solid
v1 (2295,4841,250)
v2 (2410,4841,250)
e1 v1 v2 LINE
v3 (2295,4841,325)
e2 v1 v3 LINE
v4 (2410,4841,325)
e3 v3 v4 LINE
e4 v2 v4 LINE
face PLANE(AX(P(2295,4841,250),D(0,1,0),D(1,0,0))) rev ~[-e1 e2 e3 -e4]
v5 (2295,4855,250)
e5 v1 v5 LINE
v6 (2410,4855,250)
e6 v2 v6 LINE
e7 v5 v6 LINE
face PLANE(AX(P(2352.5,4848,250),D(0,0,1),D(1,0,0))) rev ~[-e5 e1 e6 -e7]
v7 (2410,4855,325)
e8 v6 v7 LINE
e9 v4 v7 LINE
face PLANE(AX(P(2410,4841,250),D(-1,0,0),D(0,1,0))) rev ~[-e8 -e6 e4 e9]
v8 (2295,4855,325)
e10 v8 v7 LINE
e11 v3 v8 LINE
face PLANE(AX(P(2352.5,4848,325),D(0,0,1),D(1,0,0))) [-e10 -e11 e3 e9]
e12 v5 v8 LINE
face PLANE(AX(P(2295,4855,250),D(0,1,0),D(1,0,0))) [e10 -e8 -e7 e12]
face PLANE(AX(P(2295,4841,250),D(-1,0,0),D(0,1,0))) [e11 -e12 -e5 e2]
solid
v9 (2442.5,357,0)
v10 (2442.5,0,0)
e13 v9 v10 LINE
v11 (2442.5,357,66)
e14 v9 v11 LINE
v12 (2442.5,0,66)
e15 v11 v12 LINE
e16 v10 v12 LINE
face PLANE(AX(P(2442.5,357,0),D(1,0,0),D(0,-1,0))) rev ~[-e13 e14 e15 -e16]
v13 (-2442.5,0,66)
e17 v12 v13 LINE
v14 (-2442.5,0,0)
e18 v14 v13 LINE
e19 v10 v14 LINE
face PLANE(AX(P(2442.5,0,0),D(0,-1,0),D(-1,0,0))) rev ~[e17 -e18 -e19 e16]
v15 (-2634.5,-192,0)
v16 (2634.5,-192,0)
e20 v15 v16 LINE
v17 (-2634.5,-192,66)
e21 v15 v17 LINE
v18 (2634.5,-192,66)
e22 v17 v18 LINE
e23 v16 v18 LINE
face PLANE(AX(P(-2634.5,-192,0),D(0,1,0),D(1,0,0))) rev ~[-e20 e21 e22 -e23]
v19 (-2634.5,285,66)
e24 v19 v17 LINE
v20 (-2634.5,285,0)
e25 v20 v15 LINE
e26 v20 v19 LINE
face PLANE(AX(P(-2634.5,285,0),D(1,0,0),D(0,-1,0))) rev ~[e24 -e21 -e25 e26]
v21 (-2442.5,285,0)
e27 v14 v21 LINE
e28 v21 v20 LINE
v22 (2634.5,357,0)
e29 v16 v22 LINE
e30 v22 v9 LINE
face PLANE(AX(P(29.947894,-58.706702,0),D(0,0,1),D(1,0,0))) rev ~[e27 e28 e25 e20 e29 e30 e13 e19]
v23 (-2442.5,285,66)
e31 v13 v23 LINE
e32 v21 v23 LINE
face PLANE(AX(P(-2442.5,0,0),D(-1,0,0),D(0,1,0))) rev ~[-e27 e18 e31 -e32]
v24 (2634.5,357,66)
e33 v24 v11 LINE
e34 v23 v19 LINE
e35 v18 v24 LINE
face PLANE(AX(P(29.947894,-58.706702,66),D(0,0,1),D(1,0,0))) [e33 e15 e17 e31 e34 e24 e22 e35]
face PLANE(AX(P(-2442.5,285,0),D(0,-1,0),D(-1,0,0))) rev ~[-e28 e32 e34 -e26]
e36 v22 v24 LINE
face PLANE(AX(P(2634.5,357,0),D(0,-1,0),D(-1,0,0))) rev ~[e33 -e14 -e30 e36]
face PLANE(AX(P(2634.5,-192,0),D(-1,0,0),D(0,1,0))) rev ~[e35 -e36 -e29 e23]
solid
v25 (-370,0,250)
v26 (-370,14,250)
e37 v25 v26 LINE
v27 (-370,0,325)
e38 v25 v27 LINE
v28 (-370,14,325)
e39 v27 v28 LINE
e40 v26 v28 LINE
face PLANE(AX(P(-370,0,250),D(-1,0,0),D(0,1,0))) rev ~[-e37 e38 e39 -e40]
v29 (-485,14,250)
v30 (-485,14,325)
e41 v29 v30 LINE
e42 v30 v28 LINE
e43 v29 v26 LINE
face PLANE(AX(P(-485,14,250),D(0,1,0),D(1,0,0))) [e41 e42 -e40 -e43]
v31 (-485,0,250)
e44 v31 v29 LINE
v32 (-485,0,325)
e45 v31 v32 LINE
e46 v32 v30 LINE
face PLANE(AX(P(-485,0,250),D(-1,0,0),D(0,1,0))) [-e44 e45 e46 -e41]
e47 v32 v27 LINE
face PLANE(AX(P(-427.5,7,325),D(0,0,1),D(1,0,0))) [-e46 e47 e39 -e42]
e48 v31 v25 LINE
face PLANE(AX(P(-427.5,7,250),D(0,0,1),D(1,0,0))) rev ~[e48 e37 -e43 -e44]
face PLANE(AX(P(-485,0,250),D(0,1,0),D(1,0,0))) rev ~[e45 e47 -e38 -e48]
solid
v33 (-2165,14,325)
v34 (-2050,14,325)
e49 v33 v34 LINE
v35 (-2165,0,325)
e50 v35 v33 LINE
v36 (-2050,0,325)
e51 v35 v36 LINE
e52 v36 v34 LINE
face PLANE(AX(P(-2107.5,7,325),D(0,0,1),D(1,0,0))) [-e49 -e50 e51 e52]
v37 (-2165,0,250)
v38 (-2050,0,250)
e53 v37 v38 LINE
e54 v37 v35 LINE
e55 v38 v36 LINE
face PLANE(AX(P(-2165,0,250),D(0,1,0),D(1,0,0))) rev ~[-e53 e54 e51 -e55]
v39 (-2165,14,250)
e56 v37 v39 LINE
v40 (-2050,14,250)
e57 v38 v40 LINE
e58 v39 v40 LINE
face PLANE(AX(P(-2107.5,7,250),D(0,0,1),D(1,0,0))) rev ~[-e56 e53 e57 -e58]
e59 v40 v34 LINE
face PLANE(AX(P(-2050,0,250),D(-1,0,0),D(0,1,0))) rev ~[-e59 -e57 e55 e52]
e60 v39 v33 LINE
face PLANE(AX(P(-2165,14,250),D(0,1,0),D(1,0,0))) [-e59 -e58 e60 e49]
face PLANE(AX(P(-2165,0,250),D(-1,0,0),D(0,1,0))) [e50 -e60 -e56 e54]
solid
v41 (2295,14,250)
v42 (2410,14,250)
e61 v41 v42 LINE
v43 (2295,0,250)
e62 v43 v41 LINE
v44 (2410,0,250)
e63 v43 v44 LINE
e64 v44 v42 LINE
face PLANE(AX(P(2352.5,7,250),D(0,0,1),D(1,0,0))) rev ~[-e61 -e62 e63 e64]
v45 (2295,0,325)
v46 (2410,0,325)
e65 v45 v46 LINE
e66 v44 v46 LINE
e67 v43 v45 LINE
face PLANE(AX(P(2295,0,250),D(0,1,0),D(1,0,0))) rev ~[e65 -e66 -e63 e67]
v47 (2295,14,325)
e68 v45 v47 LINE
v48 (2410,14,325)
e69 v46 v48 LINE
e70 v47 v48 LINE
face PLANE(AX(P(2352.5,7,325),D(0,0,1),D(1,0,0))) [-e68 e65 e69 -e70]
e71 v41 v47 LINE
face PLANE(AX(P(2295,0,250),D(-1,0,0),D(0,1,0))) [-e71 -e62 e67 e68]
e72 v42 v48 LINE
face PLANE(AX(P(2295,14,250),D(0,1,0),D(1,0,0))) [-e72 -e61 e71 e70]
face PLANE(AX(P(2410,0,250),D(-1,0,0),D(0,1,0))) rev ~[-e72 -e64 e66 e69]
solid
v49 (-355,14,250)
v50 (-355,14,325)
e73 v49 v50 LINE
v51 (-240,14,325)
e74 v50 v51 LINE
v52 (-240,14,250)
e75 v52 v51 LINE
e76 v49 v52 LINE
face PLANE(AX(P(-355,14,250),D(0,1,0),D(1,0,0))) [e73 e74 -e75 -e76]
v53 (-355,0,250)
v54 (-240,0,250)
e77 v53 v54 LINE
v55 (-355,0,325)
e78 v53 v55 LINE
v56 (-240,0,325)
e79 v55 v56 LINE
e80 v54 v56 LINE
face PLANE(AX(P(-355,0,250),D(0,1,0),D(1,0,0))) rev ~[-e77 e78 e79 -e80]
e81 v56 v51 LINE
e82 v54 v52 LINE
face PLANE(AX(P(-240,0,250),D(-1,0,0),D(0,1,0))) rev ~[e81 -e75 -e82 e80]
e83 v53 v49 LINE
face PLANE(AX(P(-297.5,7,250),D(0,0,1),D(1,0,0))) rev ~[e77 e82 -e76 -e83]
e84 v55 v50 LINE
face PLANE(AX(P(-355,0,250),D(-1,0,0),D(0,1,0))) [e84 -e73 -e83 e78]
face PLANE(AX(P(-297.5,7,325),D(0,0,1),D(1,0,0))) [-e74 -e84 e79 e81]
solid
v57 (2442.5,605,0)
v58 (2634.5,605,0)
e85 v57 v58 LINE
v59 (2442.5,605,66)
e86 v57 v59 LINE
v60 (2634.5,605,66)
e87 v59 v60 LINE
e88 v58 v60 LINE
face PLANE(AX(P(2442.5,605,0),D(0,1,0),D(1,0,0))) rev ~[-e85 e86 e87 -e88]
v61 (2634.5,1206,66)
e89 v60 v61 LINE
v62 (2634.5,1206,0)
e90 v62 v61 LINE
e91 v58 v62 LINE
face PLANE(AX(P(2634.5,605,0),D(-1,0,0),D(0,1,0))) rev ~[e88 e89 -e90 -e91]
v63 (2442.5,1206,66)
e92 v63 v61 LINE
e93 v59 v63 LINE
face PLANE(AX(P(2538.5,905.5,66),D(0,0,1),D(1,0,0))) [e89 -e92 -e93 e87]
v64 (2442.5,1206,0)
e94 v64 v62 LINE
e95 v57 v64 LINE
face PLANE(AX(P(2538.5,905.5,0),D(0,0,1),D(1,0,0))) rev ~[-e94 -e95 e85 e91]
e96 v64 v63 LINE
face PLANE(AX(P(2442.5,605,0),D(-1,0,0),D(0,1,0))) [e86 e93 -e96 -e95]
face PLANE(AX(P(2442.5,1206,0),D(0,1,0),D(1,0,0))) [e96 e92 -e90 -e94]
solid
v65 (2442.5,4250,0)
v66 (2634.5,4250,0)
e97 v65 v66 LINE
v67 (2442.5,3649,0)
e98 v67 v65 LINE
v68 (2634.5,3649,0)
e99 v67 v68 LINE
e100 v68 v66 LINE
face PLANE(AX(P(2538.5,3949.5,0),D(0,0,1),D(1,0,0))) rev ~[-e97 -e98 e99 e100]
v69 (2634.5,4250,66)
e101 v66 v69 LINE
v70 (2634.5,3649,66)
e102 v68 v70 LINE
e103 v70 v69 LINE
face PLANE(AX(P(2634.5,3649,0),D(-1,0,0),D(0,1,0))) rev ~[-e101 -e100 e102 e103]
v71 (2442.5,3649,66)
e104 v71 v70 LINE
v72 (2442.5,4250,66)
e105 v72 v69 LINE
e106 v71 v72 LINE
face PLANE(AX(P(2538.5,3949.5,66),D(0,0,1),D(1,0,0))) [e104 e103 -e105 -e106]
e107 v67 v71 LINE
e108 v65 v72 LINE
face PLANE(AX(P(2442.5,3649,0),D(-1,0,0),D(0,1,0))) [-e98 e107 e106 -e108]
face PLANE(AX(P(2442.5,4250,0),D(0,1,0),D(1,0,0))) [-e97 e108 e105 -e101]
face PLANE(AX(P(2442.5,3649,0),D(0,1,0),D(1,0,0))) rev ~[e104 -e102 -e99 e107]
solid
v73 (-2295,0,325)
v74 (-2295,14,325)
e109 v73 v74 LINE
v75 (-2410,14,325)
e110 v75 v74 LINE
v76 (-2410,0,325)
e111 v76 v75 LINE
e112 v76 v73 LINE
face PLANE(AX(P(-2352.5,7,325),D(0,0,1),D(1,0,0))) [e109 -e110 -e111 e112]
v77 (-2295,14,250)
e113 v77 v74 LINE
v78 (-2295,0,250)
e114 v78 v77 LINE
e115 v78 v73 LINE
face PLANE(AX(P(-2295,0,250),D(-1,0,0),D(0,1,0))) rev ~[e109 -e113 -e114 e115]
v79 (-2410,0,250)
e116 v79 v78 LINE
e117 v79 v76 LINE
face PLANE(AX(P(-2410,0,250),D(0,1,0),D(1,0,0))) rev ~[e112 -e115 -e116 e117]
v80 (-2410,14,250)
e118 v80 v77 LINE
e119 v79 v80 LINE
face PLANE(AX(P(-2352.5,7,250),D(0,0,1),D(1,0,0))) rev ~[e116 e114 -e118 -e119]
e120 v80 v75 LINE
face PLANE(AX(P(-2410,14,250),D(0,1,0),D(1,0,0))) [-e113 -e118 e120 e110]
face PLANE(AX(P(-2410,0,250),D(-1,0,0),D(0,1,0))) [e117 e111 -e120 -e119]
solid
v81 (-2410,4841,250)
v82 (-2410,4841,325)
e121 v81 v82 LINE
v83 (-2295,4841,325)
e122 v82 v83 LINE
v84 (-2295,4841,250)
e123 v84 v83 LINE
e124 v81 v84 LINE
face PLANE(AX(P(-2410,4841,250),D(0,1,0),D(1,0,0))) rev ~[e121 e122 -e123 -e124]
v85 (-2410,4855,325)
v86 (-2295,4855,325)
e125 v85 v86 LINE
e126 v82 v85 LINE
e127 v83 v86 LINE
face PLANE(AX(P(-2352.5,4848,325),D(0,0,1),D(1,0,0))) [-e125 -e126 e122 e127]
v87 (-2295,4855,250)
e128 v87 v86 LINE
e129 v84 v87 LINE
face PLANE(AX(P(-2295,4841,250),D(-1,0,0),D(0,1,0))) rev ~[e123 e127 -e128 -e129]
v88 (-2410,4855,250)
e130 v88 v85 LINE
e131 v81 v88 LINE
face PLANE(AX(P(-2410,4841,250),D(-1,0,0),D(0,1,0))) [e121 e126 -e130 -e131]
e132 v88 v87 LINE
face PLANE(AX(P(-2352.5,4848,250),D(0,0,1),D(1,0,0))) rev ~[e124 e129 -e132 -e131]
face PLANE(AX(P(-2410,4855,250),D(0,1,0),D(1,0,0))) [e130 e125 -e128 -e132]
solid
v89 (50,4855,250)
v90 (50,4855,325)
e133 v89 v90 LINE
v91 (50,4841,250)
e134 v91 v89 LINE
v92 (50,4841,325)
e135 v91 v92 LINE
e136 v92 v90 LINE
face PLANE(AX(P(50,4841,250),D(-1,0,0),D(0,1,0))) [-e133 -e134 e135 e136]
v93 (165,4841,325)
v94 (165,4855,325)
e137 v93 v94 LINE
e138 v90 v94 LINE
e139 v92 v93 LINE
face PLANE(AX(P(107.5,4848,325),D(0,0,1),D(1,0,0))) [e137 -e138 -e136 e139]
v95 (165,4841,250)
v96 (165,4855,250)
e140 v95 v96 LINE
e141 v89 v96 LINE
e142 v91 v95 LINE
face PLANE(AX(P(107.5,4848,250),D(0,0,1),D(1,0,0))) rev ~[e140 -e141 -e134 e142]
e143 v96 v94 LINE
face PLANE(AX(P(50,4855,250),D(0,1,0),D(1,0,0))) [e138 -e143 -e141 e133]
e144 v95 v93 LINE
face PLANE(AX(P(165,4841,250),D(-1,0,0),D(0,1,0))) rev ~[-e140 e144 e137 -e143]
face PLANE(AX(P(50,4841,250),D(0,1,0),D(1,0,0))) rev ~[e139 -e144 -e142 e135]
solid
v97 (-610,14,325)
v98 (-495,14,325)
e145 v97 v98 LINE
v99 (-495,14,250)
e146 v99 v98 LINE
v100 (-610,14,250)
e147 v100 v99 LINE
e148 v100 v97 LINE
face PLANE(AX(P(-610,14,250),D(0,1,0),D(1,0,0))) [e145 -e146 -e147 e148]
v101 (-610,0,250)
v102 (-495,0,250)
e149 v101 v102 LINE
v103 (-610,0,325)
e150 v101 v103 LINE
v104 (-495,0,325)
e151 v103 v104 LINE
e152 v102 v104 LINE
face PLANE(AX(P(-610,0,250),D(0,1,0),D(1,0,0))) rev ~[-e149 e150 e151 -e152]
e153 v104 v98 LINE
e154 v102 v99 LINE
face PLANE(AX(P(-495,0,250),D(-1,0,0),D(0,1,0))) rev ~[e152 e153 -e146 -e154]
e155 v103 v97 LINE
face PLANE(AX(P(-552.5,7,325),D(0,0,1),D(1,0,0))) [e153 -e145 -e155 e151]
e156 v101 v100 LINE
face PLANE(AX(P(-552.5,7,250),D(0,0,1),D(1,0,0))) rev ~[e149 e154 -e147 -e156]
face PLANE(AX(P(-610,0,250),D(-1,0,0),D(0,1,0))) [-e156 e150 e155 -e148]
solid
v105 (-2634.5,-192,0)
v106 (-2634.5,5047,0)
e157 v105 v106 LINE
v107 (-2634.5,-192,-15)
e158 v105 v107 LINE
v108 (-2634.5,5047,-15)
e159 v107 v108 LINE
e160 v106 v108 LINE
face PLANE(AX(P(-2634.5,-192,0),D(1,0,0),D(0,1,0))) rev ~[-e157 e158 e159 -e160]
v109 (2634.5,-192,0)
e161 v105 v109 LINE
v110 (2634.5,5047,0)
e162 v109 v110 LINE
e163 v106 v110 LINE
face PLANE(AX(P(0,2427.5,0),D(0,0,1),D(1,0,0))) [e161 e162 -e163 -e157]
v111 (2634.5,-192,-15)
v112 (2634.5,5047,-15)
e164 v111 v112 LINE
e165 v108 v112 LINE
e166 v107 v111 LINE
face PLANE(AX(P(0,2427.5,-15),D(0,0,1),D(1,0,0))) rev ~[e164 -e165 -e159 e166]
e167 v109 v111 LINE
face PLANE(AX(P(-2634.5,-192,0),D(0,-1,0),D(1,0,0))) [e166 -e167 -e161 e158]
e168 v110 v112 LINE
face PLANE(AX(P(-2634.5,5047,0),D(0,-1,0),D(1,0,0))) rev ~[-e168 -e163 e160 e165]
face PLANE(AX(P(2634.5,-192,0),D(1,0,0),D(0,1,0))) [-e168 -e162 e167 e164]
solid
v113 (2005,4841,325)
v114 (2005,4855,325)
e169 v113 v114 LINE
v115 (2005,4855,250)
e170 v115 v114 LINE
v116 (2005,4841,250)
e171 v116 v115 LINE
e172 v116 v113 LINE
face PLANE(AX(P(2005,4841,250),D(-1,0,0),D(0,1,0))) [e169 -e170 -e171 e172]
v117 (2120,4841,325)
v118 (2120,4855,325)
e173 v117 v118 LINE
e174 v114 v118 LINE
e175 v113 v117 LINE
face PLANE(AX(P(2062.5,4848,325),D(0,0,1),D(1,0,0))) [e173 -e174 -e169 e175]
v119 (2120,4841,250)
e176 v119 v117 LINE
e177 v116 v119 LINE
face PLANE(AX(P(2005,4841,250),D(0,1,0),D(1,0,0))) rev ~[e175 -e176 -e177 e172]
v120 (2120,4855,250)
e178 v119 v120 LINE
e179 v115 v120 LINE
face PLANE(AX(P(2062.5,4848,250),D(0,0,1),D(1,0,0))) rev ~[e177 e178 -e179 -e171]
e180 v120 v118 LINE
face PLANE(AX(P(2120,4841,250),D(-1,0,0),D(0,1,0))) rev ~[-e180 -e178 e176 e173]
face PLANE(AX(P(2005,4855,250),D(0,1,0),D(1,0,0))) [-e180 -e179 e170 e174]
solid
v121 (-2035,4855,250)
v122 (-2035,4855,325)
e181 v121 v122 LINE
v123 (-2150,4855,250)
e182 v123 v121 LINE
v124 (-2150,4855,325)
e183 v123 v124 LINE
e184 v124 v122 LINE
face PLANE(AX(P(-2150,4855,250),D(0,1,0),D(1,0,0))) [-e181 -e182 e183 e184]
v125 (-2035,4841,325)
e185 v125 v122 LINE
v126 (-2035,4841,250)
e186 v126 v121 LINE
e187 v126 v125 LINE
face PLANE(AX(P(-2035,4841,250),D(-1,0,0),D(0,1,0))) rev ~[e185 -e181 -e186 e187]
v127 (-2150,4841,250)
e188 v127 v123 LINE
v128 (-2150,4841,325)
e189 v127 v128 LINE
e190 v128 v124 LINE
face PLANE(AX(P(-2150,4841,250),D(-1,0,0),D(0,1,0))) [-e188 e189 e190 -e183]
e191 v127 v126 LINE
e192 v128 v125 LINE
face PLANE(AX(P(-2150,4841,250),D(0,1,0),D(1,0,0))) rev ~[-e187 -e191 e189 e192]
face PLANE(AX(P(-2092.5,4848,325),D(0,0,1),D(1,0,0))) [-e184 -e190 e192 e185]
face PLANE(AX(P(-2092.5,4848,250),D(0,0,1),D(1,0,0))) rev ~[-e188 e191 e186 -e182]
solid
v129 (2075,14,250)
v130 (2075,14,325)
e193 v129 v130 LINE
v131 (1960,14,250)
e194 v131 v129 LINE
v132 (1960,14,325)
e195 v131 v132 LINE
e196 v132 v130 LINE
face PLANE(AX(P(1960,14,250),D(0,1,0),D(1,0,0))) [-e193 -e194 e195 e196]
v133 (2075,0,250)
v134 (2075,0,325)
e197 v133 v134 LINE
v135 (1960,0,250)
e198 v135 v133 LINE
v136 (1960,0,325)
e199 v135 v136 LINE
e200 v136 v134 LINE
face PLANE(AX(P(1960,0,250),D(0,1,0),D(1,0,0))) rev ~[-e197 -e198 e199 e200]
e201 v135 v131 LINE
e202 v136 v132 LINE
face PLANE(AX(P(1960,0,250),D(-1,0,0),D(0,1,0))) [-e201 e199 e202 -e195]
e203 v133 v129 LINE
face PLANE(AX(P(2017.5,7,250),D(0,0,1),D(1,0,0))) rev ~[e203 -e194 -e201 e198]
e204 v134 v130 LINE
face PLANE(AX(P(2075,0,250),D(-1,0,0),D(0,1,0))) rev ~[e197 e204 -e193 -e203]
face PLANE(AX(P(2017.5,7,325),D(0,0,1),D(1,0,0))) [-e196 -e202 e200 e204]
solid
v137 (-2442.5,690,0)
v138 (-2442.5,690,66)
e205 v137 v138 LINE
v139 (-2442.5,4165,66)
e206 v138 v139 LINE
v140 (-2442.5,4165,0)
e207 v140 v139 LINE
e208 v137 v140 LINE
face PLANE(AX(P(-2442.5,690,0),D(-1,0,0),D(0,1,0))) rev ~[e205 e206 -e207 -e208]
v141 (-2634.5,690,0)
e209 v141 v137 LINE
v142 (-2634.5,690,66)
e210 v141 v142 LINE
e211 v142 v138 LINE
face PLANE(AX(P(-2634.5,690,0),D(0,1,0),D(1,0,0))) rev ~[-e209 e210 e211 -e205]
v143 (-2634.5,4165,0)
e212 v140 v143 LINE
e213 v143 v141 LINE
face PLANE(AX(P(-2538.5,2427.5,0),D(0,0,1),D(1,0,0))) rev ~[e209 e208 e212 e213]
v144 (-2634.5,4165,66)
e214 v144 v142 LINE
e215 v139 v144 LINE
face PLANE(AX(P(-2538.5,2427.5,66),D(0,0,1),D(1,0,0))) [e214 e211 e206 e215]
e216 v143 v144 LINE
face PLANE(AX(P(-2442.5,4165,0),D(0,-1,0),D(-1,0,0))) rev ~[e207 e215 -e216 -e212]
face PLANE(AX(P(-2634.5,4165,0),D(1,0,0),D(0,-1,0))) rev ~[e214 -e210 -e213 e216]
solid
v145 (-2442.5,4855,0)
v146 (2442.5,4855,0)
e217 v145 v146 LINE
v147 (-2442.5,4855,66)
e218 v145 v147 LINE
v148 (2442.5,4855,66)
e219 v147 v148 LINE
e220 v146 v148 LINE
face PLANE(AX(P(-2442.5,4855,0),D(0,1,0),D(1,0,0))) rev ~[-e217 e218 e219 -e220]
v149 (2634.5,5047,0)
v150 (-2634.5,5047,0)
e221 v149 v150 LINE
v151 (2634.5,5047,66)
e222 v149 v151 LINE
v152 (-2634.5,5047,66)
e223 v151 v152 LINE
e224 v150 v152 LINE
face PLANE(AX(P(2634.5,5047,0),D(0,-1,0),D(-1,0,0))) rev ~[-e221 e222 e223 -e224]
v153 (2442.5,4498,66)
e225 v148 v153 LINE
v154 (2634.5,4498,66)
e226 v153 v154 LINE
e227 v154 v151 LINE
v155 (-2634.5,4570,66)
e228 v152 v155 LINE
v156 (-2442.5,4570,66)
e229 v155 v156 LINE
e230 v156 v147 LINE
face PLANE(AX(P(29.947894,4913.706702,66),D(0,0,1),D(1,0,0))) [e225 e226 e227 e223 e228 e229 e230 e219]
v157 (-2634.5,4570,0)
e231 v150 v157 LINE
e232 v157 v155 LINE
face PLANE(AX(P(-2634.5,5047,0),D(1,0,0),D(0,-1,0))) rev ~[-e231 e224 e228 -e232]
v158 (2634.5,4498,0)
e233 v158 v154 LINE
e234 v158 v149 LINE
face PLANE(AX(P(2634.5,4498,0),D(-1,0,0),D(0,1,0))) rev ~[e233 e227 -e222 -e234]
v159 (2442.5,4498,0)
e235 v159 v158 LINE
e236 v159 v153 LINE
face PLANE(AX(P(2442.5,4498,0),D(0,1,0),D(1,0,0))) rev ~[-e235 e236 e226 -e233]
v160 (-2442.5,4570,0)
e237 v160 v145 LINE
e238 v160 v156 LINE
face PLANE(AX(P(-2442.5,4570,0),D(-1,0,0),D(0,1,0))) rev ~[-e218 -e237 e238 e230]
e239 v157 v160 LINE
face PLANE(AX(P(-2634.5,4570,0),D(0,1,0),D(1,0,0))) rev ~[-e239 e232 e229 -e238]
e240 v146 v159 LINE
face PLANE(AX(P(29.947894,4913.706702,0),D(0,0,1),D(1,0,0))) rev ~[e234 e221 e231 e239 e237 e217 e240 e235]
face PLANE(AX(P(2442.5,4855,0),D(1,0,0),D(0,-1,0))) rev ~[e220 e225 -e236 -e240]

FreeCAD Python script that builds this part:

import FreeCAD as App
import Part
import Sketcher
from FreeCAD import Vector

doc = App.newDocument("Part")
body = doc.addObject("PartDesign::Body", "Body")
body.AllowCompound = True

# Sketch on XY plane
sketch1 = body.newObject("Sketcher::SketchObject", "Sketch")
sketch1.AttachmentSupport = (doc.getObject("XY_Plane"), [""])
sketch1.MapMode = "FlatFace"
sketch1.addGeometry(Part.LineSegment(Vector(2442, 1206, 0), Vector(2442, 605, 0)), False)
sketch1.addGeometry(Part.LineSegment(Vector(2442, 605, 0), Vector(2634, 605, 0)), False)
sketch1.addGeometry(Part.LineSegment(Vector(2634, 605, 0), Vector(2634, 1206, 0)), False)
sketch1.addGeometry(Part.LineSegment(Vector(2634, 1206, 0), Vector(2442, 1206, 0)), False)
sketch1.addGeometry(Part.LineSegment(Vector(2442, 4250, 0), Vector(2442, 3649, 0)), False)
sketch1.addGeometry(Part.LineSegment(Vector(2442, 3649, 0), Vector(2634, 3649, 0)), False)
sketch1.addGeometry(Part.LineSegment(Vector(2634, 3649, 0), Vector(2634, 4250, 0)), False)
sketch1.addGeometry(Part.LineSegment(Vector(2634, 4250, 0), Vector(2442, 4250, 0)), False)
sketch1.addGeometry(Part.LineSegment(Vector(-2442, 4570, 0), Vector(-2442, 4855, 0)), False)
sketch1.addGeometry(Part.LineSegment(Vector(-2442, 4855, 0), Vector(2442, 4855, 0)), False)
sketch1.addGeometry(Part.LineSegment(Vector(2442, 4855, 0), Vector(2442, 4498, 0)), False)
sketch1.addGeometry(Part.LineSegment(Vector(2442, 4498, 0), Vector(2634, 4498, 0)), False)
sketch1.addGeometry(Part.LineSegment(Vector(2634, 4498, 0), Vector(2634, 5047, 0)), False)
sketch1.addGeometry(Part.LineSegment(Vector(2634, 5047, 0), Vector(-2634, 5047, 0)), False)
sketch1.addGeometry(Part.LineSegment(Vector(-2634, 5047, 0), Vector(-2634, 4570, 0)), False)
sketch1.addGeometry(Part.LineSegment(Vector(-2634, 4570, 0), Vector(-2442, 4570, 0)), False)
sketch1.addGeometry(Part.LineSegment(Vector(-2442, 690, 0), Vector(-2442, 4165, 0)), False)
sketch1.addGeometry(Part.LineSegment(Vector(-2442, 4165, 0), Vector(-2634, 4165, 0)), False)
sketch1.addGeometry(Part.LineSegment(Vector(-2634, 4165, 0), Vector(-2634, 690, 0)), False)
sketch1.addGeometry(Part.LineSegment(Vector(-2634, 690, 0), Vector(-2442, 690, 0)), False)
sketch1.addGeometry(Part.LineSegment(Vector(2442, 0, 0), Vector(-2442, 0, 0)), False)
sketch1.addGeometry(Part.LineSegment(Vector(-2442, 0, 0), Vector(-2442, 285, 0)), False)
sketch1.addGeometry(Part.LineSegment(Vector(-2442, 285, 0), Vector(-2634, 285, 0)), False)
sketch1.addGeometry(Part.LineSegment(Vector(-2634, 285, 0), Vector(-2634, -192, 0)), False)
sketch1.addGeometry(Part.LineSegment(Vector(-2634, -192, 0), Vector(2634, -192, 0)), False)
sketch1.addGeometry(Part.LineSegment(Vector(2634, -192, 0), Vector(2634, 357, 0)), False)
sketch1.addGeometry(Part.LineSegment(Vector(2634, 357, 0), Vector(2442, 357, 0)), False)
sketch1.addGeometry(Part.LineSegment(Vector(2442, 357, 0), Vector(2442, 0, 0)), False)
sketch1.addConstraint(Sketcher.Constraint("Coincident", 0, 2, 1, 1))
sketch1.addConstraint(Sketcher.Constraint("Coincident", 1, 2, 2, 1))
sketch1.addConstraint(Sketcher.Constraint("Coincident", 2, 2, 3, 1))
sketch1.addConstraint(Sketcher.Constraint("Coincident", 3, 2, 0, 1))
sketch1.addConstraint(Sketcher.Constraint("Coincident", 4, 2, 5, 1))
sketch1.addConstraint(Sketcher.Constraint("Coincident", 5, 2, 6, 1))
sketch1.addConstraint(Sketcher.Constraint("Coincident", 6, 2, 7, 1))
sketch1.addConstraint(Sketcher.Constraint("Coincident", 7, 2, 4, 1))
sketch1.addConstraint(Sketcher.Constraint("Coincident", 8, 2, 9, 1))
sketch1.addConstraint(Sketcher.Constraint("Coincident", 9, 2, 10, 1))
sketch1.addConstraint(Sketcher.Constraint("Coincident", 10, 2, 11, 1))
sketch1.addConstraint(Sketcher.Constraint("Coincident", 11, 2, 12, 1))
sketch1.addConstraint(Sketcher.Constraint("Coincident", 12, 2, 13, 1))
sketch1.addConstraint(Sketcher.Constraint("Coincident", 13, 2, 14, 1))
sketch1.addConstraint(Sketcher.Constraint("Coincident", 14, 2, 15, 1))
sketch1.addConstraint(Sketcher.Constraint("Coincident", 15, 2, 8, 1))
sketch1.addConstraint(Sketcher.Constraint("Coincident", 16, 2, 17, 1))
sketch1.addConstraint(Sketcher.Constraint("Coincident", 17, 2, 18, 1))
sketch1.addConstraint(Sketcher.Constraint("Coincident", 18, 2, 19, 1))
sketch1.addConstraint(Sketcher.Constraint("Coincident", 19, 2, 16, 1))
sketch1.addConstraint(Sketcher.Constraint("Coincident", 20, 2, 21, 1))
sketch1.addConstraint(Sketcher.Constraint("Coincident", 21, 2, 22, 1))
sketch1.addConstraint(Sketcher.Constraint("Coincident", 22, 2, 23, 1))
sketch1.addConstraint(Sketcher.Constraint("Coincident", 23, 2, 24, 1))
sketch1.addConstraint(Sketcher.Constraint("Coincident", 24, 2, 25, 1))
sketch1.addConstraint(Sketcher.Constraint("Coincident", 25, 2, 26, 1))
sketch1.addConstraint(Sketcher.Constraint("Coincident", 26, 2, 27, 1))
sketch1.addConstraint(Sketcher.Constraint("Coincident", 27, 2, 20, 1))
sketch1.addConstraint(Sketcher.Constraint("Vertical", 0))
sketch1.addConstraint(Sketcher.Constraint("Horizontal", 1))
sketch1.addConstraint(Sketcher.Constraint("Vertical", 2))
sketch1.addConstraint(Sketcher.Constraint("Horizontal", 3))
sketch1.addConstraint(Sketcher.Constraint("Vertical", 4))
sketch1.addConstraint(Sketcher.Constraint("Horizontal", 5))
sketch1.addConstraint(Sketcher.Constraint("Vertical", 6))
sketch1.addConstraint(Sketcher.Constraint("Horizontal", 7))
sketch1.addConstraint(Sketcher.Constraint("Vertical", 8))
sketch1.addConstraint(Sketcher.Constraint("Horizontal", 9))
sketch1.addConstraint(Sketcher.Constraint("Vertical", 10))
sketch1.addConstraint(Sketcher.Constraint("Horizontal", 11))
sketch1.addConstraint(Sketcher.Constraint("Vertical", 12))
sketch1.addConstraint(Sketcher.Constraint("Horizontal", 13))
sketch1.addConstraint(Sketcher.Constraint("Vertical", 14))
sketch1.addConstraint(Sketcher.Constraint("Horizontal", 15))
sketch1.addConstraint(Sketcher.Constraint("Vertical", 16))
sketch1.addConstraint(Sketcher.Constraint("Horizontal", 17))
sketch1.addConstraint(Sketcher.Constraint("Vertical", 18))
sketch1.addConstraint(Sketcher.Constraint("Horizontal", 19))
sketch1.addConstraint(Sketcher.Constraint("Horizontal", 20))
sketch1.addConstraint(Sketcher.Constraint("Vertical", 21))
sketch1.addConstraint(Sketcher.Constraint("Horizontal", 22))
sketch1.addConstraint(Sketcher.Constraint("Vertical", 23))
sketch1.addConstraint(Sketcher.Constraint("Horizontal", 24))
sketch1.addConstraint(Sketcher.Constraint("Vertical", 25))
sketch1.addConstraint(Sketcher.Constraint("Horizontal", 26))
sketch1.addConstraint(Sketcher.Constraint("Vertical", 27))
sketch1.addConstraint(Sketcher.Constraint("Symmetric", 20, 2, 27, 2, -1, 1))
sketch1.addConstraint(Sketcher.Constraint("Vertical", 3, 2, 4, 2))
sketch1.addConstraint(Sketcher.Constraint("Vertical", 2, 2, 5, 2))
sketch1.addConstraint(Sketcher.Constraint("Vertical", 7, 2, 9, 2))
sketch1.addConstraint(Sketcher.Constraint("Vertical", 6, 2, 11, 2))
sketch1.addConstraint(Sketcher.Constraint("Vertical", 15, 2, 16, 2))
sketch1.addConstraint(Sketcher.Constraint("Vertical", 14, 2, 17, 2))
sketch1.addConstraint(Sketcher.Constraint("Vertical", 19, 2, 20, 2))
sketch1.addConstraint(Sketcher.Constraint("Vertical", 18, 2, 22, 2))
sketch1.addConstraint(Sketcher.Constraint("Vertical", 12, 2, 24, 2))
sketch1.addConstraint(Sketcher.Constraint("Vertical", 10, 2, 26, 2))
sketch1.addConstraint(Sketcher.Constraint("Equal", 11, 15))
sketch1.addConstraint(Sketcher.Constraint("Equal", 2, 4))
sketch1.addConstraint(Sketcher.Constraint("Equal", 8, 21))
sketch1.addConstraint(Sketcher.Constraint("Equal", 14, 23))
sketch1.addConstraint(Sketcher.Constraint("Equal", 12, 25))
sketch1.addConstraint(Sketcher.Constraint("DistanceX", 1, 1, 1, 2, 192.0))
sketch1.addConstraint(Sketcher.Constraint("DistanceX", 9, 1, 9, 2, 4885.0))
sketch1.addConstraint(Sketcher.Constraint("DistanceY", 0, 2, 0, 1, 601.0))
sketch1.addConstraint(Sketcher.Constraint("DistanceY", 8, 1, 8, 2, 285.0))
sketch1.addConstraint(Sketcher.Constraint("DistanceY", 10, 2, 10, 1, 357.0))
sketch1.addConstraint(Sketcher.Constraint("DistanceY", 12, 1, 12, 2, 549.0))
sketch1.addConstraint(Sketcher.Constraint("DistanceY", 16, 1, 16, 2, 3475.0))
sketch1.addConstraint(Sketcher.Constraint("DistanceY", -1, 1, 0, 2, 605.0))
sketch1.addConstraint(Sketcher.Constraint("DistanceY", -1, 1, 4, 2, 3649.0))
sketch1.addConstraint(Sketcher.Constraint("DistanceY", -1, 1, 8, 2, 4855.0))
sketch1.addConstraint(Sketcher.Constraint("DistanceY", -1, 1, 16, 2, 4165.0))
pad1 = body.newObject("PartDesign::Pad", "Pad")
pad1.Profile = sketch1
pad1.Length = 66
body2 = doc.addObject("PartDesign::Body", "Body001")

# Sketch on XY plane
sketch2 = body2.newObject("Sketcher::SketchObject", "Sketch001")
sketch2.AttachmentSupport = (doc.getObject("XY_Plane001"), [""])
sketch2.MapMode = "FlatFace"
sketch2.addGeometry(Part.LineSegment(Vector(-2634, 5047, 0), Vector(-2634, -192, 0)), False)
sketch2.addGeometry(Part.LineSegment(Vector(-2634, -192, 0), Vector(2634, -192, 0)), False)
sketch2.addGeometry(Part.LineSegment(Vector(2634, -192, 0), Vector(2634, 5047, 0)), False)
sketch2.addGeometry(Part.LineSegment(Vector(2634, 5047, 0), Vector(-2634, 5047, 0)), False)
sketch2.addConstraint(Sketcher.Constraint("Coincident", 0, 2, 1, 1))
sketch2.addConstraint(Sketcher.Constraint("Coincident", 1, 2, 2, 1))
sketch2.addConstraint(Sketcher.Constraint("Coincident", 2, 2, 3, 1))
sketch2.addConstraint(Sketcher.Constraint("Coincident", 3, 2, 0, 1))
sketch2.addConstraint(Sketcher.Constraint("Vertical", 0))
sketch2.addConstraint(Sketcher.Constraint("Horizontal", 1))
sketch2.addConstraint(Sketcher.Constraint("Vertical", 2))
sketch2.addConstraint(Sketcher.Constraint("Horizontal", 3))
sketch2.addConstraint(Sketcher.Constraint("DistanceX", 1, 1, 1, 2, 5269.0))
sketch2.addConstraint(Sketcher.Constraint("DistanceY", 0, 2, 0, 1, 5239.0))
sketch2.addConstraint(Sketcher.Constraint("DistanceY", 0, 2, -1, 1, 192.0))
sketch2.addConstraint(Sketcher.Constraint("DistanceX", 0, 2, -1, 1, 2634.5))
pad2 = body2.newObject("PartDesign::Pad", "Pad001")
pad2.Profile = sketch2
pad2.Length = 15
pad2.Reversed = True
body3 = doc.addObject("PartDesign::Body", "Body002")
body3.AllowCompound = True

# Sketch on XY plane
sketch3 = body3.newObject("Sketcher::SketchObject", "Sketch002")
sketch3.AttachmentSupport = (doc.getObject("XY_Plane002"), [""])
sketch3.MapMode = "FlatFace"
sketch3.AttachmentOffset = App.Placement(Vector(0, 0, 250), App.Rotation())
sketch3.addGeometry(Part.LineSegment(Vector(2295, 14, 0), Vector(2295, 0, 0)), False)
sketch3.addGeometry(Part.LineSegment(Vector(2295, 0, 0), Vector(2410, 0, 0)), False)
sketch3.addGeometry(Part.LineSegment(Vector(2410, 0, 0), Vector(2410, 14, 0)), False)
sketch3.addGeometry(Part.LineSegment(Vector(2410, 14, 0), Vector(2295, 14, 0)), False)
sketch3.addGeometry(Part.LineSegment(Vector(-2410, 14, 0), Vector(-2410, 0, 0)), False)
sketch3.addGeometry(Part.LineSegment(Vector(-2410, 0, 0), Vector(-2295, 0, 0)), False)
sketch3.addGeometry(Part.LineSegment(Vector(-2295, 0, 0), Vector(-2295, 14, 0)), False)
sketch3.addGeometry(Part.LineSegment(Vector(-2295, 14, 0), Vector(-2410, 14, 0)), False)
sketch3.addGeometry(Part.LineSegment(Vector(-2410, 4855, 0), Vector(-2410, 4841, 0)), False)
sketch3.addGeometry(Part.LineSegment(Vector(-2410, 4841, 0), Vector(-2295, 4841, 0)), False)
sketch3.addGeometry(Part.LineSegment(Vector(-2295, 4841, 0), Vector(-2295, 4855, 0)), False)
sketch3.addGeometry(Part.LineSegment(Vector(-2295, 4855, 0), Vector(-2410, 4855, 0)), False)
sketch3.addGeometry(Part.LineSegment(Vector(2295, 4855, 0), Vector(2295, 4841, 0)), False)
sketch3.addGeometry(Part.LineSegment(Vector(2295, 4841, 0), Vector(2410, 4841, 0)), False)
sketch3.addGeometry(Part.LineSegment(Vector(2410, 4841, 0), Vector(2410, 4855, 0)), False)
sketch3.addGeometry(Part.LineSegment(Vector(2410, 4855, 0), Vector(2295, 4855, 0)), False)
sketch3.addConstraint(Sketcher.Constraint("Coincident", 0, 2, 1, 1))
sketch3.addConstraint(Sketcher.Constraint("Coincident", 1, 2, 2, 1))
sketch3.addConstraint(Sketcher.Constraint("Coincident", 2, 2, 3, 1))
sketch3.addConstraint(Sketcher.Constraint("Coincident", 3, 2, 0, 1))
sketch3.addConstraint(Sketcher.Constraint("Coincident", 4, 2, 5, 1))
sketch3.addConstraint(Sketcher.Constraint("Coincident", 5, 2, 6, 1))
sketch3.addConstraint(Sketcher.Constraint("Coincident", 6, 2, 7, 1))
sketch3.addConstraint(Sketcher.Constraint("Coincident", 7, 2, 4, 1))
sketch3.addConstraint(Sketcher.Constraint("Coincident", 8, 2, 9, 1))
sketch3.addConstraint(Sketcher.Constraint("Coincident", 9, 2, 10, 1))
sketch3.addConstraint(Sketcher.Constraint("Coincident", 10, 2, 11, 1))
sketch3.addConstraint(Sketcher.Constraint("Coincident", 11, 2, 8, 1))
sketch3.addConstraint(Sketcher.Constraint("Coincident", 12, 2, 13, 1))
sketch3.addConstraint(Sketcher.Constraint("Coincident", 13, 2, 14, 1))
sketch3.addConstraint(Sketcher.Constraint("Coincident", 14, 2, 15, 1))
sketch3.addConstraint(Sketcher.Constraint("Coincident", 15, 2, 12, 1))
sketch3.addConstraint(Sketcher.Constraint("Vertical", 0))
sketch3.addConstraint(Sketcher.Constraint("Horizontal", 1))
sketch3.addConstraint(Sketcher.Constraint("Vertical", 2))
sketch3.addConstraint(Sketcher.Constraint("Horizontal", 3))
sketch3.addConstraint(Sketcher.Constraint("Vertical", 4))
sketch3.addConstraint(Sketcher.Constraint("Horizontal", 5))
sketch3.addConstraint(Sketcher.Constraint("Vertical", 6))
sketch3.addConstraint(Sketcher.Constraint("Horizontal", 7))
sketch3.addConstraint(Sketcher.Constraint("Vertical", 8))
sketch3.addConstraint(Sketcher.Constraint("Horizontal", 9))
sketch3.addConstraint(Sketcher.Constraint("Vertical", 10))
sketch3.addConstraint(Sketcher.Constraint("Horizontal", 11))
sketch3.addConstraint(Sketcher.Constraint("Vertical", 12))
sketch3.addConstraint(Sketcher.Constraint("Horizontal", 13))
sketch3.addConstraint(Sketcher.Constraint("Vertical", 14))
sketch3.addConstraint(Sketcher.Constraint("Horizontal", 15))
sketch3.addConstraint(Sketcher.Constraint("Symmetric", 1, 2, 4, 2, -1, 1))
sketch3.addConstraint(Sketcher.Constraint("Symmetric", 0, 2, 5, 2, -2))
sketch3.addConstraint(Sketcher.Constraint("Symmetric", 9, 2, 12, 2, -2))
sketch3.addConstraint(Sketcher.Constraint("Symmetric", 11, 2, 14, 2, -2))
sketch3.addConstraint(Sketcher.Constraint("Horizontal", 3, 2, 6, 2))
sketch3.addConstraint(Sketcher.Constraint("Vertical", 7, 2, 8, 2))
sketch3.addConstraint(Sketcher.Constraint("Vertical", 6, 2, 9, 2))
sketch3.addConstraint(Sketcher.Constraint("Equal", 6, 8))
sketch3.addConstraint(Sketcher.Constraint("DistanceX", 1, 1, 1, 2, 115.0))
sketch3.addConstraint(Sketcher.Constraint("DistanceY", 0, 2, 0, 1, 14.0))
sketch3.addConstraint(Sketcher.Constraint("DistanceX", -1, 1, 0, 2, 2295.0))
sketch3.addConstraint(Sketcher.Constraint("DistanceY", -1, 1, 8, 2, 4841.0))
pad3 = body3.newObject("PartDesign::Pad", "Pad002")
pad3.Profile = sketch3
pad3.Length = 75
body4 = doc.addObject("PartDesign::Body", "Body003")
body4.AllowCompound = True

# Sketch on XY plane
sketch4 = body4.newObject("Sketcher::SketchObject", "Sketch003")
sketch4.AttachmentSupport = (doc.getObject("XY_Plane003"), [""])
sketch4.MapMode = "FlatFace"
sketch4.AttachmentOffset = App.Placement(Vector(0, 0, 250), App.Rotation())
sketch4.addGeometry(Part.LineSegment(Vector(1960, 14, 0), Vector(1960, 0, 0)), False)
sketch4.addGeometry(Part.LineSegment(Vector(1960, 0, 0), Vector(2075, 0, 0)), False)
sketch4.addGeometry(Part.LineSegment(Vector(2075, 0, 0), Vector(2075, 14, 0)), False)
sketch4.addGeometry(Part.LineSegment(Vector(2075, 14, 0), Vector(1960, 14, 0)), False)
sketch4.addGeometry(Part.LineSegment(Vector(-485, 14, 0), Vector(-485, 0, 0)), False)
sketch4.addGeometry(Part.LineSegment(Vector(-485, 0, 0), Vector(-370, 0, 0)), False)
sketch4.addGeometry(Part.LineSegment(Vector(-370, 0, 0), Vector(-370, 14, 0)), False)
sketch4.addGeometry(Part.LineSegment(Vector(-370, 14, 0), Vector(-485, 14, 0)), False)
sketch4.addGeometry(Part.LineSegment(Vector(-610, 14, 0), Vector(-610, 0, 0)), False)
sketch4.addGeometry(Part.LineSegment(Vector(-610, 0, 0), Vector(-495, 0, 0)), False)
sketch4.addGeometry(Part.LineSegment(Vector(-495, 0, 0), Vector(-495, 14, 0)), False)
sketch4.addGeometry(Part.LineSegment(Vector(-495, 14, 0), Vector(-610, 14, 0)), False)
sketch4.addGeometry(Part.LineSegment(Vector(-2165, 14, 0), Vector(-2165, 0, 0)), False)
sketch4.addGeometry(Part.LineSegment(Vector(-2165, 0, 0), Vector(-2050, 0, 0)), False)
sketch4.addGeometry(Part.LineSegment(Vector(-2050, 0, 0), Vector(-2050, 14, 0)), False)
sketch4.addGeometry(Part.LineSegment(Vector(-2050, 14, 0), Vector(-2165, 14, 0)), False)
sketch4.addGeometry(Part.LineSegment(Vector(-2150, 4855, 0), Vector(-2150, 4841, 0)), False)
sketch4.addGeometry(Part.LineSegment(Vector(-2150, 4841, 0), Vector(-2035, 4841, 0)), False)
sketch4.addGeometry(Part.LineSegment(Vector(-2035, 4841, 0), Vector(-2035, 4855, 0)), False)
sketch4.addGeometry(Part.LineSegment(Vector(-2035, 4855, 0), Vector(-2150, 4855, 0)), False)
sketch4.addGeometry(Part.LineSegment(Vector(50, 4855, 0), Vector(50, 4841, 0)), False)
sketch4.addGeometry(Part.LineSegment(Vector(50, 4841, 0), Vector(165, 4841, 0)), False)
sketch4.addGeometry(Part.LineSegment(Vector(165, 4841, 0), Vector(165, 4855, 0)), False)
sketch4.addGeometry(Part.LineSegment(Vector(165, 4855, 0), Vector(50, 4855, 0)), False)
sketch4.addGeometry(Part.LineSegment(Vector(2005, 4855, 0), Vector(2005, 4841, 0)), False)
sketch4.addGeometry(Part.LineSegment(Vector(2005, 4841, 0), Vector(2120, 4841, 0)), False)
sketch4.addGeometry(Part.LineSegment(Vector(2120, 4841, 0), Vector(2120, 4855, 0)), False)
sketch4.addGeometry(Part.LineSegment(Vector(2120, 4855, 0), Vector(2005, 4855, 0)), False)
sketch4.addConstraint(Sketcher.Constraint("Coincident", 0, 2, 1, 1))
sketch4.addConstraint(Sketcher.Constraint("Coincident", 1, 2, 2, 1))
sketch4.addConstraint(Sketcher.Constraint("Coincident", 2, 2, 3, 1))
sketch4.addConstraint(Sketcher.Constraint("Coincident", 3, 2, 0, 1))
sketch4.addConstraint(Sketcher.Constraint("Coincident", 4, 2, 5, 1))
sketch4.addConstraint(Sketcher.Constraint("Coincident", 5, 2, 6, 1))
sketch4.addConstraint(Sketcher.Constraint("Coincident", 6, 2, 7, 1))
sketch4.addConstraint(Sketcher.Constraint("Coincident", 7, 2, 4, 1))
sketch4.addConstraint(Sketcher.Constraint("Coincident", 8, 2, 9, 1))
sketch4.addConstraint(Sketcher.Constraint("Coincident", 9, 2, 10, 1))
sketch4.addConstraint(Sketcher.Constraint("Coincident", 10, 2, 11, 1))
sketch4.addConstraint(Sketcher.Constraint("Coincident", 11, 2, 8, 1))
sketch4.addConstraint(Sketcher.Constraint("Coincident", 12, 2, 13, 1))
sketch4.addConstraint(Sketcher.Constraint("Coincident", 13, 2, 14, 1))
sketch4.addConstraint(Sketcher.Constraint("Coincident", 14, 2, 15, 1))
sketch4.addConstraint(Sketcher.Constraint("Coincident", 15, 2, 12, 1))
sketch4.addConstraint(Sketcher.Constraint("Coincident", 16, 2, 17, 1))
sketch4.addConstraint(Sketcher.Constraint("Coincident", 17, 2, 18, 1))
sketch4.addConstraint(Sketcher.Constraint("Coincident", 18, 2, 19, 1))
sketch4.addConstraint(Sketcher.Constraint("Coincident", 19, 2, 16, 1))
sketch4.addConstraint(Sketcher.Constraint("Coincident", 20, 2, 21, 1))
sketch4.addConstraint(Sketcher.Constraint("Coincident", 21, 2, 22, 1))
sketch4.addConstraint(Sketcher.Constraint("Coincident", 22, 2, 23, 1))
sketch4.addConstraint(Sketcher.Constraint("Coincident", 23, 2, 20, 1))
sketch4.addConstraint(Sketcher.Constraint("Coincident", 24, 2, 25, 1))
sketch4.addConstraint(Sketcher.Constraint("Coincident", 25, 2, 26, 1))
sketch4.addConstraint(Sketcher.Constraint("Coincident", 26, 2, 27, 1))
sketch4.addConstraint(Sketcher.Constraint("Coincident", 27, 2, 24, 1))
sketch4.addConstraint(Sketcher.Constraint("Vertical", 0))
sketch4.addConstraint(Sketcher.Constraint("Horizontal", 1))
sketch4.addConstraint(Sketcher.Constraint("Vertical", 2))
sketch4.addConstraint(Sketcher.Constraint("Horizontal", 3))
sketch4.addConstraint(Sketcher.Constraint("Vertical", 4))
sketch4.addConstraint(Sketcher.Constraint("Horizontal", 5))
sketch4.addConstraint(Sketcher.Constraint("Vertical", 6))
sketch4.addConstraint(Sketcher.Constraint("Horizontal", 7))
sketch4.addConstraint(Sketcher.Constraint("Vertical", 8))
sketch4.addConstraint(Sketcher.Constraint("Horizontal", 9))
sketch4.addConstraint(Sketcher.Constraint("Vertical", 10))
sketch4.addConstraint(Sketcher.Constraint("Horizontal", 11))
sketch4.addConstraint(Sketcher.Constraint("Vertical", 12))
sketch4.addConstraint(Sketcher.Constraint("Horizontal", 13))
sketch4.addConstraint(Sketcher.Constraint("Vertical", 14))
sketch4.addConstraint(Sketcher.Constraint("Horizontal", 15))
sketch4.addConstraint(Sketcher.Constraint("Vertical", 16))
sketch4.addConstraint(Sketcher.Constraint("Horizontal", 17))
sketch4.addConstraint(Sketcher.Constraint("Vertical", 18))
sketch4.addConstraint(Sketcher.Constraint("Horizontal", 19))
sketch4.addConstraint(Sketcher.Constraint("Vertical", 20))
sketch4.addConstraint(Sketcher.Constraint("Horizontal", 21))
sketch4.addConstraint(Sketcher.Constraint("Vertical", 22))
sketch4.addConstraint(Sketcher.Constraint("Horizontal", 23))
sketch4.addConstraint(Sketcher.Constraint("Vertical", 24))
sketch4.addConstraint(Sketcher.Constraint("Horizontal", 25))
sketch4.addConstraint(Sketcher.Constraint("Vertical", 26))
sketch4.addConstraint(Sketcher.Constraint("Horizontal", 27))
sketch4.addConstraint(Sketcher.Constraint("PointOnObject", 0, 2, -1))
sketch4.addConstraint(Sketcher.Constraint("PointOnObject", 4, 2, -1))
sketch4.addConstraint(Sketcher.Constraint("PointOnObject", 8, 2, -1))
sketch4.addConstraint(Sketcher.Constraint("PointOnObject", 12, 2, -1))
sketch4.addConstraint(Sketcher.Constraint("Horizontal", 3, 2, 6, 2))
sketch4.addConstraint(Sketcher.Constraint("Horizontal", 7, 2, 10, 2))
sketch4.addConstraint(Sketcher.Constraint("Horizontal", 11, 2, 14, 2))
sketch4.addConstraint(Sketcher.Constraint("Horizontal", 17, 2, 20, 2))
sketch4.addConstraint(Sketcher.Constraint("Horizontal", 19, 2, 22, 2))
sketch4.addConstraint(Sketcher.Constraint("Horizontal", 21, 2, 24, 2))
sketch4.addConstraint(Sketcher.Constraint("Horizontal", 23, 2, 26, 2))
sketch4.addConstraint(Sketcher.Constraint("Equal", 3, 5))
sketch4.addConstraint(Sketcher.Constraint("Equal", 7, 9))
sketch4.addConstraint(Sketcher.Constraint("Equal", 11, 13))
sketch4.addConstraint(Sketcher.Constraint("Equal", 15, 17))
sketch4.addConstraint(Sketcher.Constraint("Equal", 19, 21))
sketch4.addConstraint(Sketcher.Constraint("Equal", 23, 25))
sketch4.addConstraint(Sketcher.Constraint("Equal", 14, 16))
sketch4.addConstraint(Sketcher.Constraint("DistanceX", 1, 1, 1, 2, 115.0))
sketch4.addConstraint(Sketcher.Constraint("DistanceY", 0, 2, 0, 1, 14.0))
sketch4.addConstraint(Sketcher.Constraint("DistanceX", -1, 1, 0, 2, 1960.0))
sketch4.addConstraint(Sketcher.Constraint("DistanceX", 4, 2, -1, 1, 485.0))
sketch4.addConstraint(Sketcher.Constraint("DistanceX", 8, 2, -1, 1, 610.0))
sketch4.addConstraint(Sketcher.Constraint("DistanceX", 12, 2, -1, 1, 2165.0))
sketch4.addConstraint(Sketcher.Constraint("DistanceX", 16, 2, -1, 1, 2150.0))
sketch4.addConstraint(Sketcher.Constraint("DistanceY", -1, 1, 16, 2, 4841.0))
sketch4.addConstraint(Sketcher.Constraint("DistanceX", -1, 1, 20, 2, 50.0))
sketch4.addConstraint(Sketcher.Constraint("DistanceX", -1, 1, 24, 2, 2005.0))
pad4 = body4.newObject("PartDesign::Pad", "Pad003")
pad4.Profile = sketch4
pad4.Length = 75
body5 = doc.addObject("PartDesign::Body", "Body004")

# Sketch on XY plane
sketch5 = body5.newObject("Sketcher::SketchObject", "Sketch004")
sketch5.AttachmentSupport = (doc.getObject("XY_Plane004"), [""])
sketch5.MapMode = "FlatFace"
sketch5.AttachmentOffset = App.Placement(Vector(0, 0, 250), App.Rotation())
sketch5.addGeometry(Part.LineSegment(Vector(-355, 14, 0), Vector(-355, 0, 0)), False)
sketch5.addGeometry(Part.LineSegment(Vector(-355, 0, 0), Vector(-240, 0, 0)), False)
sketch5.addGeometry(Part.LineSegment(Vector(-240, 0, 0), Vector(-240, 14, 0)), False)
sketch5.addGeometry(Part.LineSegment(Vector(-240, 14, 0), Vector(-355, 14, 0)), False)
sketch5.addConstraint(Sketcher.Constraint("Coincident", 0, 2, 1, 1))
sketch5.addConstraint(Sketcher.Constraint("Coincident", 1, 2, 2, 1))
sketch5.addConstraint(Sketcher.Constraint("Coincident", 2, 2, 3, 1))
sketch5.addConstraint(Sketcher.Constraint("Coincident", 3, 2, 0, 1))
sketch5.addConstraint(Sketcher.Constraint("Vertical", 0))
sketch5.addConstraint(Sketcher.Constraint("Horizontal", 1))
sketch5.addConstraint(Sketcher.Constraint("Vertical", 2))
sketch5.addConstraint(Sketcher.Constraint("Horizontal", 3))
sketch5.addConstraint(Sketcher.Constraint("PointOnObject", 0, 2, -1))
sketch5.addConstraint(Sketcher.Constraint("DistanceX", 1, 1, 1, 2, 115.0))
sketch5.addConstraint(Sketcher.Constraint("DistanceY", 0, 2, 0, 1, 14.0))
sketch5.addConstraint(Sketcher.Constraint("DistanceX", 0, 2, -1, 1, 355.0))
pad5 = body5.newObject("PartDesign::Pad", "Pad004")
pad5.Profile = sketch5
pad5.Length = 75

doc.recompute()
